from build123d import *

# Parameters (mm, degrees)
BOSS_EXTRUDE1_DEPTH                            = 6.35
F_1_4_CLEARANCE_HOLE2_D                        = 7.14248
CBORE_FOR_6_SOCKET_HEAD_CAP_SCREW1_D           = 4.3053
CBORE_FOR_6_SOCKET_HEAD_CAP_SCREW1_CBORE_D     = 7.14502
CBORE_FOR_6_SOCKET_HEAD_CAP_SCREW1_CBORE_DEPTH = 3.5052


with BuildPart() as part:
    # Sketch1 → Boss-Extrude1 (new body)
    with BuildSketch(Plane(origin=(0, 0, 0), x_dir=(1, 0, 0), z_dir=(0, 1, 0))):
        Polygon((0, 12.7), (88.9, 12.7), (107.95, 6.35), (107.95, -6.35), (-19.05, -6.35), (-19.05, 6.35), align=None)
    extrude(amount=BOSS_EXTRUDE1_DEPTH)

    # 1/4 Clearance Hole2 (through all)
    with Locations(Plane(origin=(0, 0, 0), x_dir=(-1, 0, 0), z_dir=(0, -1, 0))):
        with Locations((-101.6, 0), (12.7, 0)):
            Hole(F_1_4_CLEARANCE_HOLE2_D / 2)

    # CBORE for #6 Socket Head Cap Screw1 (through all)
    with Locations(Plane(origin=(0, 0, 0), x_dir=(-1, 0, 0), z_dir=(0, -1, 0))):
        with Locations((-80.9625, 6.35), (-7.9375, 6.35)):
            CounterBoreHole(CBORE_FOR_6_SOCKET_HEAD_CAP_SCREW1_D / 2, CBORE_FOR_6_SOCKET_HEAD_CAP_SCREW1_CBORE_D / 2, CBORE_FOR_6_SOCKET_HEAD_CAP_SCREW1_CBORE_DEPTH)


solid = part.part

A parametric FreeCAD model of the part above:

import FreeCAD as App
import Part
import Sketcher

V = App.Vector
Q = App.Units.Quantity

doc = App.newDocument("Part")
body = doc.addObject("PartDesign::Body", "Body")

# Sketch on XZ plane
sketch1 = doc.addObject("Sketcher::SketchObject", "Sketch")
body.addObject(sketch1)
sketch1.AttachmentSupport = (doc.XZ_Plane, [""])
sketch1.MapMode = "FlatFace"
sketch1.addGeometry(Part.LineSegment(V(89, -13, 0), V(0, -13, 0)), False)
sketch1.addGeometry(Part.LineSegment(V(0, -13, 0), V(-19, -6, 0)), False)
sketch1.addGeometry(Part.LineSegment(V(-19, -6, 0), V(-19, 6, 0)), False)
sketch1.addGeometry(Part.LineSegment(V(-19, 6, 0), V(108, 6, 0)), False)
sketch1.addGeometry(Part.LineSegment(V(108, 6, 0), V(108, -6, 0)), False)
sketch1.addGeometry(Part.LineSegment(V(108, -6, 0), V(89, -13, 0)), False)
sketch1.addConstraint(Sketcher.Constraint("Coincident", 0, 2, 1, 1))
sketch1.addConstraint(Sketcher.Constraint("Coincident", 1, 2, 2, 1))
sketch1.addConstraint(Sketcher.Constraint("Coincident", 2, 2, 3, 1))
sketch1.addConstraint(Sketcher.Constraint("Coincident", 3, 2, 4, 1))
sketch1.addConstraint(Sketcher.Constraint("Coincident", 4, 2, 5, 1))
sketch1.addConstraint(Sketcher.Constraint("Coincident", 5, 2, 0, 1))
sketch1.addConstraint(Sketcher.Constraint("Horizontal", 0))
sketch1.addConstraint(Sketcher.Constraint("Vertical", 2))
sketch1.addConstraint(Sketcher.Constraint("Horizontal", 3))
sketch1.addConstraint(Sketcher.Constraint("Vertical", 4))
sketch1.addConstraint(Sketcher.Constraint("PointOnObject", 0, 2, -2))
sketch1.addConstraint(Sketcher.Constraint("Horizontal", 1, 2, 4, 2))
sketch1.addConstraint(Sketcher.Constraint("Equal", 1, 5))
sketch1.addConstraint(Sketcher.Constraint("DistanceX", 3, 1, 3, 2, Q("5 in")))
sketch1.addConstraint(Sketcher.Constraint("DistanceX", 0, 2, 0, 1, Q("3.5 in")))
sketch1.addConstraint(Sketcher.Constraint("DistanceY", 2, 1, 2, 2, Q("0.5 in")))
sketch1.addConstraint(Sketcher.Constraint("DistanceY", 0, 2, -1, 1, Q("0.5 in")))
sketch1.addConstraint(Sketcher.Constraint("DistanceY", 1, 2, -1, 1, Q("0.25 in")))
pad1 = doc.addObject("PartDesign::Pad", "Pad")
body.addObject(pad1)
pad1.Profile = sketch1
pad1.Length = Q("0.25 in")
pad1.Reversed = True

# Sketch on XZ plane
sketch2 = doc.addObject("Sketcher::SketchObject", "Sketch001")
body.addObject(sketch2)
sketch2.AttachmentSupport = (doc.XZ_Plane, [""])
sketch2.MapMode = "FlatFace"
sketch2.addGeometry(Part.Circle(V(101.6, 0, 0), V(0, 0, 1), 3.6), False)
sketch2.addGeometry(Part.Circle(V(-12.7, 0, 0), V(0, 0, 1), 3.6), False)
sketch2.addConstraint(Sketcher.Constraint("Equal", 0, 1))
sketch2.addConstraint(Sketcher.Constraint("PointOnObject", 0, 3, -1))
sketch2.addConstraint(Sketcher.Constraint("PointOnObject", 1, 3, -1))
sketch2.addConstraint(Sketcher.Constraint("DistanceX", -1, 1, 0, 3, Q("4 in")))
sketch2.addConstraint(Sketcher.Constraint("Diameter", 0, Q("0.2812 in")))
sketch2.addConstraint(Sketcher.Constraint("DistanceX", 1, 3, -1, 1, Q("0.5 in")))
doc.recompute()
hole = doc.addObject("PartDesign::Hole", "Hole")
body.addObject(hole)
hole.Profile = sketch2
hole.ThreadType = "None"
hole.Diameter = Q("0.2812 in")
hole.DepthType = "ThroughAll"

# Sketch on XZ plane
sketch3 = doc.addObject("Sketcher::SketchObject", "Sketch002")
body.addObject(sketch3)
sketch3.AttachmentSupport = (doc.XZ_Plane, [""])
sketch3.MapMode = "FlatFace"
sketch3.addGeometry(Part.Circle(V(81, -6.3, 0), V(0, 0, 1), 2.2), False)
sketch3.addGeometry(Part.Circle(V(7.9, -6.3, 0), V(0, 0, 1), 2.2), False)
sketch3.addConstraint(Sketcher.Constraint("Equal", 0, 1))
sketch3.addConstraint(Sketcher.Constraint("Horizontal", 0, 3, 1, 3))
sketch3.addConstraint(Sketcher.Constraint("Diameter", 0, Q("0.1695 in")))
sketch3.addConstraint(Sketcher.Constraint("DistanceY", 0, 3, -1, 1, Q("0.25 in")))
sketch3.addConstraint(Sketcher.Constraint("DistanceX", -1, 1, 0, 3, Q("3.1875 in")))
sketch3.addConstraint(Sketcher.Constraint("DistanceX", -1, 1, 1, 3, Q("0.3125 in")))
doc.recompute()
hole2 = doc.addObject("PartDesign::Hole", "Hole001")
body.addObject(hole2)
hole2.Profile = sketch3
hole2.ThreadType = "None"
hole2.Diameter = Q("0.1695 in")
hole2.DepthType = "ThroughAll"
hole2.HoleCutType = "Counterbore"
hole2.HoleCutDiameter = Q("0.2813 in")
hole2.HoleCutDepth = Q("0.138 in")

doc.recompute()
